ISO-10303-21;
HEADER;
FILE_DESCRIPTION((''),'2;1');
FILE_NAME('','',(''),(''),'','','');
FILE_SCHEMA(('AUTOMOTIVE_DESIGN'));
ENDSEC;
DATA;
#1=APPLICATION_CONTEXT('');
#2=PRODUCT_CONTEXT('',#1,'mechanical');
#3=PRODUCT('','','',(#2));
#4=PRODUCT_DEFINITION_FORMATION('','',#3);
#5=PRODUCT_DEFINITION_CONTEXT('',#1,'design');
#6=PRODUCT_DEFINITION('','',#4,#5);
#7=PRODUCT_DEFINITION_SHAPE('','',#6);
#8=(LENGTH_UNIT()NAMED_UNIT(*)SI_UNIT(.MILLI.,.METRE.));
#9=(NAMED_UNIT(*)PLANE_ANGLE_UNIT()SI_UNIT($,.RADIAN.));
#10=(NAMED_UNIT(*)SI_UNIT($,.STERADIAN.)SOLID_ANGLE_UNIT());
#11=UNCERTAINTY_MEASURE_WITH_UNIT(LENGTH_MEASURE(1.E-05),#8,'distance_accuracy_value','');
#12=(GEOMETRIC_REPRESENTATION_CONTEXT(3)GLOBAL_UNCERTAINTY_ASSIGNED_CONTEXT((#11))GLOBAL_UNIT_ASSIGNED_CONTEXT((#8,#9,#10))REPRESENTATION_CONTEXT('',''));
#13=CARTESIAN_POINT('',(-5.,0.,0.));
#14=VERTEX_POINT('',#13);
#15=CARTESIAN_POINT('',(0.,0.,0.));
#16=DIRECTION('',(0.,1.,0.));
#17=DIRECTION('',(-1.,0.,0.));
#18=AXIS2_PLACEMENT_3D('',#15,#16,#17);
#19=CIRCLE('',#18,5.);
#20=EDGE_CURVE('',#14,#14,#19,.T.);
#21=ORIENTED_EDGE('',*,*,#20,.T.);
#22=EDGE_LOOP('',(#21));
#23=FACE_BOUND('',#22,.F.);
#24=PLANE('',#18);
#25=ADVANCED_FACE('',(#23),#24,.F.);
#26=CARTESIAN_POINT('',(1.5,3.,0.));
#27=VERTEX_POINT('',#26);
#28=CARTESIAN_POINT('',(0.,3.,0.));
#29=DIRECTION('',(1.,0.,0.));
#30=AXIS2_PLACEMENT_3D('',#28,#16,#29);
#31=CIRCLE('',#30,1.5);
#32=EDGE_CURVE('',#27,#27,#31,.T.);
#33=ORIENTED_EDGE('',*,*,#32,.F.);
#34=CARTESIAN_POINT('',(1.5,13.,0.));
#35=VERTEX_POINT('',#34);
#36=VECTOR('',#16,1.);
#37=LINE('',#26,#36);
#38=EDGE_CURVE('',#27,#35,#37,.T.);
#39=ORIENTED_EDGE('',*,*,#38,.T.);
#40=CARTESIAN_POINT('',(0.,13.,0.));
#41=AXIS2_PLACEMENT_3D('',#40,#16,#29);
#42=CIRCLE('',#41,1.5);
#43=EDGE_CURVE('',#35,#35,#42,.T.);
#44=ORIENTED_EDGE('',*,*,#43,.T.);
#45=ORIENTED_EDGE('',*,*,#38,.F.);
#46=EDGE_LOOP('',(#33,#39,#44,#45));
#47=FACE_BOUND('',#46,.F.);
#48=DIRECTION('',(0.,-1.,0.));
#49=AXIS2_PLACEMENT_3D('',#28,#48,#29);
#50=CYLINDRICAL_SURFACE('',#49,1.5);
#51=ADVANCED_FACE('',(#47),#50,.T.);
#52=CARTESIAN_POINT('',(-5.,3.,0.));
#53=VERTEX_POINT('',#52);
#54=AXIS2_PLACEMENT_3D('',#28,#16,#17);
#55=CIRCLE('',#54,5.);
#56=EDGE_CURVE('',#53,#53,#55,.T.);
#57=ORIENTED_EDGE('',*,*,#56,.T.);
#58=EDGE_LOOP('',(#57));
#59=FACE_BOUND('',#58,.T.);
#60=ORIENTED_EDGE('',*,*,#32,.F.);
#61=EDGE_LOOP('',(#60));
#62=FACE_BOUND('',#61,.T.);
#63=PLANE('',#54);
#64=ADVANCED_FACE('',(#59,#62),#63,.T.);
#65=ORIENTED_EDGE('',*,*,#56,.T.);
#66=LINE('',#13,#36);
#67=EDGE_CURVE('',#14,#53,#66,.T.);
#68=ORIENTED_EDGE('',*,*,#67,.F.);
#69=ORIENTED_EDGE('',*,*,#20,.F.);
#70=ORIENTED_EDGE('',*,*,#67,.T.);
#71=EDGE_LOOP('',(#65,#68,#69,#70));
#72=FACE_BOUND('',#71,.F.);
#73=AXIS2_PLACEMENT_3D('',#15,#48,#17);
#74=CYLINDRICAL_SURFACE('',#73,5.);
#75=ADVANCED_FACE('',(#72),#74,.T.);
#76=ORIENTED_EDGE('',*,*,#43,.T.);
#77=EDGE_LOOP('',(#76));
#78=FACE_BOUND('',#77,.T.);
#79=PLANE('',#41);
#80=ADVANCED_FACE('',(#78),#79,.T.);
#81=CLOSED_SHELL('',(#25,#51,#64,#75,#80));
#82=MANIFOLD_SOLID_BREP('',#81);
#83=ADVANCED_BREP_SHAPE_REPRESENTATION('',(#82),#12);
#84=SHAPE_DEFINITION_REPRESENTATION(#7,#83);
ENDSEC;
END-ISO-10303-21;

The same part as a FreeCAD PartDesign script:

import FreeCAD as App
import Part
import Sketcher

V = App.Vector

doc = App.newDocument("Part")
params = doc.addObject("Spreadsheet::Sheet", "Params")
for row, (alias, value) in enumerate([
    ("sketch1_diameter", "10 mm"),
    ("pad1_length", "3 mm"),
    ("sketch2_diameter", "3 mm"),
    ("pad2_length", "10 mm"),
], start=1):
    params.set(f"A{row}", alias)
    params.set(f"B{row}", "=" + value)
    params.setAlias(f"B{row}", alias)

body = doc.addObject("PartDesign::Body", "Body")

sketch1 = body.newObject("Sketcher::SketchObject", "Sketch")
sketch1.AttachmentSupport = (doc.getObject("XZ_Plane"), [""])
sketch1.MapMode = "FlatFace"
sketch1.addGeometry(Part.Circle(V(0, 0, 0), V(0, 0, 1), 5), False)
sketch1.addConstraint(Sketcher.Constraint("Coincident", 0, 3, -1, 1))
sketch1.addConstraint(Sketcher.Constraint("Diameter", 0, 10.0))
sketch1.setExpression("Constraints[1]", "Params.sketch1_diameter")
pad1 = body.newObject("PartDesign::Pad", "Pad")
pad1.Profile = sketch1
pad1.setExpression("Length", "Params.pad1_length")
pad1.Reversed = True

sketch2 = body.newObject("Sketcher::SketchObject", "Sketch001")
sketch2.AttachmentSupport = (doc.getObject("XZ_Plane"), [""])
sketch2.MapMode = "FlatFace"
sketch2.AttachmentOffset = App.Placement(V(0, 0, -3), App.Rotation())
sketch2.addGeometry(Part.Circle(V(0, 0, 0), V(0, 0, 1), 1.5), False)
sketch2.addConstraint(Sketcher.Constraint("Coincident", 0, 3, -1, 1))
sketch2.addConstraint(Sketcher.Constraint("Diameter", 0, 3.0))
sketch2.setExpression("Constraints[1]", "Params.sketch2_diameter")
pad2 = body.newObject("PartDesign::Pad", "Pad001")
pad2.Profile = sketch2
pad2.setExpression("Length", "Params.pad2_length")
pad2.Reversed = True

doc.recompute()
